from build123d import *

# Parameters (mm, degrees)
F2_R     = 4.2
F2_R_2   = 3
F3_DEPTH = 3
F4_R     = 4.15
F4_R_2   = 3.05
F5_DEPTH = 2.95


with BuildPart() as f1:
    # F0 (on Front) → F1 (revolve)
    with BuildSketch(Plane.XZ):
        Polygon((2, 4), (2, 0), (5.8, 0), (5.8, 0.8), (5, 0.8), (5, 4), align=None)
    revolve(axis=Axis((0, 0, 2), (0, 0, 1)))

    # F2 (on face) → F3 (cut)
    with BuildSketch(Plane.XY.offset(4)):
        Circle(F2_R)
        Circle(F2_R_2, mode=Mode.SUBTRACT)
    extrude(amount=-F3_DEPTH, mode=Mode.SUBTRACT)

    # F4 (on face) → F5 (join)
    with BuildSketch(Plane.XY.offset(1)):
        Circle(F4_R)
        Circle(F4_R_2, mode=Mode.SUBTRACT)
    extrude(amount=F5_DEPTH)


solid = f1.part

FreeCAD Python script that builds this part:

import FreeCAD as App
import Part
import Sketcher

V = App.Vector
Q = App.Units.Quantity

doc = App.newDocument("Part")
body = doc.addObject("PartDesign::Body", "Body")

sketch1 = body.newObject("Sketcher::SketchObject", "Sketch")
sketch1.AttachmentSupport = (doc.getObject("XZ_Plane"), [""])
sketch1.MapMode = "FlatFace"
sketch1.addGeometry([
    Part.LineSegment(V(2, 4, 0), V(2, 0, 0)),
    Part.LineSegment(V(2, 0, 0), V(5.8, 0, 0)),
    Part.LineSegment(V(5.8, 0, 0), V(5.8, 0.8, 0)),
    Part.LineSegment(V(5.8, 0.8, 0), V(5, 0.8, 0)),
    Part.LineSegment(V(5, 0.8, 0), V(5, 4, 0)),
    Part.LineSegment(V(5, 4, 0), V(2, 4, 0)),
], False)
sketch1.addConstraint([
    Sketcher.Constraint("Coincident", 0, 2, 1, 1),
    Sketcher.Constraint("Coincident", 1, 2, 2, 1),
    Sketcher.Constraint("Coincident", 2, 2, 3, 1),
    Sketcher.Constraint("Coincident", 3, 2, 4, 1),
    Sketcher.Constraint("Coincident", 4, 2, 5, 1),
    Sketcher.Constraint("Coincident", 5, 2, 0, 1),
    Sketcher.Constraint("Vertical", 0),
    Sketcher.Constraint("Horizontal", 1),
    Sketcher.Constraint("Vertical", 2),
    Sketcher.Constraint("Horizontal", 3),
    Sketcher.Constraint("Vertical", 4),
    Sketcher.Constraint("Horizontal", 5),
    Sketcher.Constraint("PointOnObject", 0, 2, -1),
    Sketcher.Constraint("Equal", 3, 2),
    Sketcher.Constraint("DistanceX", 5, 2, 5, 1, Q("3 mm")),
    Sketcher.Constraint("DistanceY", 0, 2, 0, 1, Q("4 mm")),
    Sketcher.Constraint("DistanceX", 1, 1, 1, 2, Q("3.8 mm")),
    Sketcher.Constraint("DistanceX", -1, 1, 0, 2, Q("2 mm")),
])
revolution = body.newObject("PartDesign::Revolution", "Revolution")
revolution.Profile = sketch1
revolution.ReferenceAxis = (sketch1, ["V_Axis"])
revolution.Angle = 360

sketch2 = body.newObject("Sketcher::SketchObject", "Sketch001")
sketch2.AttachmentSupport = (doc.getObject("XY_Plane"), [""])
sketch2.MapMode = "FlatFace"
sketch2.AttachmentOffset = App.Placement(V(0, 0, 4), App.Rotation())
sketch2.addGeometry([
    Part.Circle(V(0, 0, 0), V(0, 0, 1), 4.2),
    Part.Circle(V(0, 0, 0), V(0, 0, 1), 3),
], False)
sketch2.addConstraint([
    Sketcher.Constraint("Coincident", 0, 3, -1, 1),
    Sketcher.Constraint("Coincident", 1, 3, -1, 1),
    Sketcher.Constraint("Diameter", 1, Q("6 mm")),
    Sketcher.Constraint("Diameter", 0, Q("8.4 mm")),
])
pocket1 = body.newObject("PartDesign::Pocket", "Pocket")
pocket1.Profile = sketch2
pocket1.Length = 3

sketch3 = body.newObject("Sketcher::SketchObject", "Sketch002")
sketch3.AttachmentSupport = (doc.getObject("XY_Plane"), [""])
sketch3.MapMode = "FlatFace"
sketch3.AttachmentOffset = App.Placement(V(0, 0, 1), App.Rotation())
sketch3.addGeometry([
    Part.Circle(V(0, 0, 0), V(0, 0, 1), 4.2),
    Part.Circle(V(0, 0, 0), V(0, 0, 1), 3),
], False)
sketch3.addConstraint([
    Sketcher.Constraint("Coincident", 0, 3, -1, 1),
    Sketcher.Constraint("Coincident", 1, 3, -1, 1),
    Sketcher.Constraint("Diameter", 0, Q("8.3 mm")),
    Sketcher.Constraint("Diameter", 1, Q("6.1 mm")),
])
pad1 = body.newObject("PartDesign::Pad", "Pad")
pad1.Profile = sketch3
pad1.Length = 2.95

doc.recompute()
